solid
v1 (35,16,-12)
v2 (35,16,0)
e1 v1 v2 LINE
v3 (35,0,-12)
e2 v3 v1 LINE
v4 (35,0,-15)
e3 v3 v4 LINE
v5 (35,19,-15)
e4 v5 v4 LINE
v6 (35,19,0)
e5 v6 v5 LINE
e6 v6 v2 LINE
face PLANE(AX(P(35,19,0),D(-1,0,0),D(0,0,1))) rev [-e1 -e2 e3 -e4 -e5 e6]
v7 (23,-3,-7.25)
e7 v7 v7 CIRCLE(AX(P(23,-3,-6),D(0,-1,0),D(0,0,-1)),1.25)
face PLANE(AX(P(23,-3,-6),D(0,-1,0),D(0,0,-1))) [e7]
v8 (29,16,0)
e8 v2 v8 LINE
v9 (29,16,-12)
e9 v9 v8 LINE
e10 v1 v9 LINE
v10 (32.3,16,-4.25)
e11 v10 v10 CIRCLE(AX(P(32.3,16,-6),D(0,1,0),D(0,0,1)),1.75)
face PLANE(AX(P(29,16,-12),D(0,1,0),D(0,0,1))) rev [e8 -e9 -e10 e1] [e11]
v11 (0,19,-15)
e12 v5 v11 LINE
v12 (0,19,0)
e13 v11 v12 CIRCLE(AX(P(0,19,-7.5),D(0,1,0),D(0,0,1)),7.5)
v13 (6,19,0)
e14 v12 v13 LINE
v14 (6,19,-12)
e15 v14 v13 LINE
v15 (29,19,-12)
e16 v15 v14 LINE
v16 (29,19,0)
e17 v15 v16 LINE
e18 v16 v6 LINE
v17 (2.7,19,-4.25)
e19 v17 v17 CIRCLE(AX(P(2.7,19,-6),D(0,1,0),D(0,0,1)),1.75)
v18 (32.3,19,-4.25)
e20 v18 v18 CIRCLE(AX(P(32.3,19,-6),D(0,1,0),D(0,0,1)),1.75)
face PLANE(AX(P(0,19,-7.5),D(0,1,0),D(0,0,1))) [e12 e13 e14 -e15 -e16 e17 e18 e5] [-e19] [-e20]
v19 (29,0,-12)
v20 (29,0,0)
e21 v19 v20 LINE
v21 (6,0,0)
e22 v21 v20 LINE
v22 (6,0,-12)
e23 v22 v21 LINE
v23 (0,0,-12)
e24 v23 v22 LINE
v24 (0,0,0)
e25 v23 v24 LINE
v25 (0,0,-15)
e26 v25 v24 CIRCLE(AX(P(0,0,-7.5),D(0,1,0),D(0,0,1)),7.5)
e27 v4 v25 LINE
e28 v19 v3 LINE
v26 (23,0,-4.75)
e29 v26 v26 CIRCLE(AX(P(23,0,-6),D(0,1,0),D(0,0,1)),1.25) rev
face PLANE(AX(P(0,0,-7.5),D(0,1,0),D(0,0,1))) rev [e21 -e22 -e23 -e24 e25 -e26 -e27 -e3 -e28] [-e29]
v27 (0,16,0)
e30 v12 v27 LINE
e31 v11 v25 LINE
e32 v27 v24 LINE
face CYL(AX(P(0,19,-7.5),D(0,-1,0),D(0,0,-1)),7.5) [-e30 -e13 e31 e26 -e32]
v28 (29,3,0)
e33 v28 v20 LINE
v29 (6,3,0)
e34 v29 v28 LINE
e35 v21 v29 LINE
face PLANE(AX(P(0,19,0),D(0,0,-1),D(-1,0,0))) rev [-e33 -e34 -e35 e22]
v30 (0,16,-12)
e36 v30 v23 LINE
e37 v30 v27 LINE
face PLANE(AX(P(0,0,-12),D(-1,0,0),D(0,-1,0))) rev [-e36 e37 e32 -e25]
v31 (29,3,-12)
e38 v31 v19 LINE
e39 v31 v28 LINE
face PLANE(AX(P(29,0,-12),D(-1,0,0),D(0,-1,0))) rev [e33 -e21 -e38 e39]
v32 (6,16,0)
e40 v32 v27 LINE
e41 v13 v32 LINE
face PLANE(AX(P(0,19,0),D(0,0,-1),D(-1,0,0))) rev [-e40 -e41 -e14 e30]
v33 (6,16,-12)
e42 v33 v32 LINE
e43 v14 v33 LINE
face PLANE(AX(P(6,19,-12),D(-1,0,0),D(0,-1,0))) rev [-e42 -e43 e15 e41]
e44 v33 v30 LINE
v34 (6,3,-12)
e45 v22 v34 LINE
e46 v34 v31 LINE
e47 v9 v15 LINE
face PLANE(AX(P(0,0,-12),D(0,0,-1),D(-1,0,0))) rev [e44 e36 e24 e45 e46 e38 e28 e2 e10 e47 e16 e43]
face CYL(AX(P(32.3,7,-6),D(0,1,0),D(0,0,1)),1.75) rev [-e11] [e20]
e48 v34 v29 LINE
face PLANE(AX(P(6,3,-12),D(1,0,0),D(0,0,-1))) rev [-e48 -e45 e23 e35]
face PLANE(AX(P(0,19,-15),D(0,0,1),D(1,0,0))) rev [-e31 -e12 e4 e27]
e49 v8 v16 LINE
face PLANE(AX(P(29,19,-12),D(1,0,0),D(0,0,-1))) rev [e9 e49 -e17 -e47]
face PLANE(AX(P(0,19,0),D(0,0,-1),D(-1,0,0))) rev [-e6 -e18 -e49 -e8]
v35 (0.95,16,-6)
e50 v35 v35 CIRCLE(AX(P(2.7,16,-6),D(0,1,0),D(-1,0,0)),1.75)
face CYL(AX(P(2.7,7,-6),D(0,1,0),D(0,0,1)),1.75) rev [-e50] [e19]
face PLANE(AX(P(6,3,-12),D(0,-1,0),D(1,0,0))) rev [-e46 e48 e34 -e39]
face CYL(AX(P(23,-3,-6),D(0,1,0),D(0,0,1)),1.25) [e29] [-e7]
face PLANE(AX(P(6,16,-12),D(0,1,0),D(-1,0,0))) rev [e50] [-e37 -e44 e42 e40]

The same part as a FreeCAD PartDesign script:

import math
import FreeCAD as App
import Part
import Sketcher
Q = App.Units.Quantity


def add_polygon(sketch, points):
    """Adds a closed chain of lines whose ends are joined by coincident constraints."""
    first, n = sketch.GeometryCount, len(points)
    for a, b in zip(points, points[1:] + points[:1]):
        sketch.addGeometry(Part.LineSegment(App.Vector(*a, 0), App.Vector(*b, 0)), False)
    for i in range(n):
        sketch.addConstraint(Sketcher.Constraint("Coincident", first + i, 2, first + (i + 1) % n, 1))

doc = App.newDocument("Part")
body = doc.addObject("PartDesign::Body", "Body")

sketch1 = doc.addObject("Sketcher::SketchObject", "Sketch")
body.addObject(sketch1)
sketch1.AttachmentSupport = (doc.XZ_Plane, [""])
sketch1.MapMode = "FlatFace"
sketch1.addGeometry(Part.LineSegment(App.Vector(0, 0, 0), App.Vector(35, 0, 0)), False)
sketch1.addGeometry(Part.LineSegment(App.Vector(35, 0, 0), App.Vector(35, -15, 0)), False)
sketch1.addGeometry(Part.LineSegment(App.Vector(35, -15, 0), App.Vector(0, -15, 0)), False)
sketch1.addGeometry(Part.ArcOfCircle(Part.Circle(App.Vector(0, -8, 0), App.Vector(0, 0, 1), 8), math.radians(90), math.radians(270)), False)
sketch1.addConstraint(Sketcher.Constraint("Coincident", 0, 2, 1, 1))
sketch1.addConstraint(Sketcher.Constraint("Coincident", 1, 2, 2, 1))
sketch1.addConstraint(Sketcher.Constraint("Tangent", 2, 2, 3, 2))
sketch1.addConstraint(Sketcher.Constraint("Tangent", 3, 1, 0, 1))
sketch1.addConstraint(Sketcher.Constraint("Horizontal", 0))
sketch1.addConstraint(Sketcher.Constraint("Vertical", 1))
sketch1.addConstraint(Sketcher.Constraint("Horizontal", 2))
sketch1.addConstraint(Sketcher.Constraint("Coincident", 3, 1, -1, 1))
sketch1.addConstraint(Sketcher.Constraint("Radius", 3, Q("7.5 mm")))
sketch1.addConstraint(Sketcher.Constraint("DistanceX", 0, 1, 0, 2, Q("35 mm")))
pad1 = doc.addObject("PartDesign::Pad", "Pad")
body.addObject(pad1)
pad1.Profile = sketch1
pad1.Length = 19
pad1.Reversed = True

sketch2 = doc.addObject("Sketcher::SketchObject", "Sketch001")
body.addObject(sketch2)
sketch2.AttachmentSupport = (doc.XY_Plane, [""])
sketch2.MapMode = "FlatFace"
add_polygon(sketch2, [(29, 19), (6, 19), (6, 16), (0, 16), (0, 0), (6, 0), (6, 3), (29, 3), (29, 0), (35, 0), (35, 16), (29, 16)])
sketch2.addConstraint(Sketcher.Constraint("Horizontal", 0))
sketch2.addConstraint(Sketcher.Constraint("Vertical", 1))
sketch2.addConstraint(Sketcher.Constraint("Horizontal", 2))
sketch2.addConstraint(Sketcher.Constraint("Vertical", 3))
sketch2.addConstraint(Sketcher.Constraint("Horizontal", 4))
sketch2.addConstraint(Sketcher.Constraint("Vertical", 5))
sketch2.addConstraint(Sketcher.Constraint("Horizontal", 6))
sketch2.addConstraint(Sketcher.Constraint("Vertical", 7))
sketch2.addConstraint(Sketcher.Constraint("Horizontal", 8))
sketch2.addConstraint(Sketcher.Constraint("Vertical", 9))
sketch2.addConstraint(Sketcher.Constraint("Horizontal", 10))
sketch2.addConstraint(Sketcher.Constraint("Vertical", 11))
sketch2.addConstraint(Sketcher.Constraint("Coincident", 3, 2, -1, 1))
sketch2.addConstraint(Sketcher.Constraint("PointOnObject", 7, 2, -1))
sketch2.addConstraint(Sketcher.Constraint("Horizontal", 2, 2, 9, 2))
sketch2.addConstraint(Sketcher.Constraint("Vertical", 1, 2, 4, 2))
sketch2.addConstraint(Sketcher.Constraint("Vertical", 7, 2, 10, 2))
sketch2.addConstraint(Sketcher.Constraint("Equal", 4, 8))
sketch2.addConstraint(Sketcher.Constraint("Equal", 1, 5))
sketch2.addConstraint(Sketcher.Constraint("DistanceX", 0, 2, 0, 1, Q("23 mm")))
sketch2.addConstraint(Sketcher.Constraint("DistanceX", 2, 2, 2, 1, Q("6 mm")))
sketch2.addConstraint(Sketcher.Constraint("DistanceY", 1, 2, 1, 1, Q("3 mm")))
sketch2.addConstraint(Sketcher.Constraint("DistanceY", 3, 2, 3, 1, Q("16 mm")))
pocket1 = doc.addObject("PartDesign::Pocket", "Pocket")
body.addObject(pocket1)
pocket1.Profile = sketch2
pocket1.Length = 12

sketch3 = doc.addObject("Sketcher::SketchObject", "Sketch002")
body.addObject(sketch3)
sketch3.AttachmentSupport = (doc.XZ_Plane, [""])
sketch3.MapMode = "FlatFace"
sketch3.AttachmentOffset = App.Placement(App.Vector(0, 0, -19), App.Rotation())
sketch3.addGeometry(Part.Circle(App.Vector(32.3, -6, 0), App.Vector(0, 0, 1), 1.8), False)
sketch3.addGeometry(Part.Circle(App.Vector(2.7, -6, 0), App.Vector(0, 0, 1), 1.8), False)
sketch3.addConstraint(Sketcher.Constraint("Equal", 0, 1))
sketch3.addConstraint(Sketcher.Constraint("Horizontal", 0, 3, 1, 3))
sketch3.addConstraint(Sketcher.Constraint("Diameter", 0, Q("3.5 mm")))
sketch3.addConstraint(Sketcher.Constraint("DistanceY", 0, 3, -1, 1, Q("6 mm")))
sketch3.addConstraint(Sketcher.Constraint("DistanceX", -1, 1, 0, 3, Q("32.3 mm")))
sketch3.addConstraint(Sketcher.Constraint("DistanceX", -1, 1, 1, 3, Q("2.7 mm")))
pocket2 = doc.addObject("PartDesign::Pocket", "Pocket001")
body.addObject(pocket2)
pocket2.Profile = sketch3
pocket2.Length = 12
pocket2.Reversed = True

sketch4 = doc.addObject("Sketcher::SketchObject", "Sketch003")
body.addObject(sketch4)
sketch4.AttachmentSupport = (doc.XZ_Plane, [""])
sketch4.MapMode = "FlatFace"
sketch4.addGeometry(Part.Circle(App.Vector(23, -6, 0), App.Vector(0, 0, 1), 1.2), False)
sketch4.addConstraint(Sketcher.Constraint("Diameter", 0, Q("2.5 mm")))
sketch4.addConstraint(Sketcher.Constraint("DistanceX", -1, 1, 0, 3, Q("23 mm")))
sketch4.addConstraint(Sketcher.Constraint("DistanceY", 0, 3, -1, 1, Q("6 mm")))
pad2 = doc.addObject("PartDesign::Pad", "Pad001")
body.addObject(pad2)
pad2.Profile = sketch4
pad2.Length = 3

doc.recompute()
